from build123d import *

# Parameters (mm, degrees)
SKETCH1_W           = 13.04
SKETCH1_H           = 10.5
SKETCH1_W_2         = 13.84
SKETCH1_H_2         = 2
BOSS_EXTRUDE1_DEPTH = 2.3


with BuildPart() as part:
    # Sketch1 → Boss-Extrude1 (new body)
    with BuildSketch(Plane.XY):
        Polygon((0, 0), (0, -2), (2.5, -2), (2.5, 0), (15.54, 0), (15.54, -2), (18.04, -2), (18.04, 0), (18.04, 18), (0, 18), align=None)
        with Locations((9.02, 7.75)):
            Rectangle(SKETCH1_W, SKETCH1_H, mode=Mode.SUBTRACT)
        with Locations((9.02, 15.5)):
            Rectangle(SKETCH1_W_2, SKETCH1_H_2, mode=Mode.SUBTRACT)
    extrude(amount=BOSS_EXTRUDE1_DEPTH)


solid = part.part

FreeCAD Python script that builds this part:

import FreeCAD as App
import Part
import Sketcher

doc = App.newDocument("Part")
body = doc.addObject("PartDesign::Body", "Body")

# Sketch on XY plane
sketch1 = body.newObject("Sketcher::SketchObject", "Sketch")
sketch1.AttachmentSupport = (doc.getObject("XY_Plane"), [""])
sketch1.MapMode = "FlatFace"
sketch1.addGeometry([
    Part.LineSegment(App.Vector(0, -2, 0), App.Vector(2.5, -2, 0)),  # 0
    Part.LineSegment(App.Vector(2.5, -2, 0), App.Vector(2.5, 0, 0)),  # 1
    Part.LineSegment(App.Vector(2.5, 0, 0), App.Vector(15.5, 0, 0)),  # 2
    Part.LineSegment(App.Vector(15.5, 0, 0), App.Vector(15.5, -2, 0)),  # 3
    Part.LineSegment(App.Vector(15.5, -2, 0), App.Vector(18, -2, 0)),  # 4
    Part.LineSegment(App.Vector(18, -2, 0), App.Vector(18, 18, 0)),  # 5
    Part.LineSegment(App.Vector(18, 18, 0), App.Vector(0, 18, 0)),  # 6
    Part.LineSegment(App.Vector(0, 18, 0), App.Vector(0, -2, 0)),  # 7
    Part.LineSegment(App.Vector(15.5, 2.5, 0), App.Vector(2.5, 2.5, 0)),  # 8
    Part.LineSegment(App.Vector(2.5, 2.5, 0), App.Vector(2.5, 13, 0)),  # 9
    Part.LineSegment(App.Vector(2.5, 13, 0), App.Vector(15.5, 13, 0)),  # 10
    Part.LineSegment(App.Vector(15.5, 13, 0), App.Vector(15.5, 2.5, 0)),  # 11
    Part.LineSegment(App.Vector(15.9, 14.5, 0), App.Vector(2.1, 14.5, 0)),  # 12
    Part.LineSegment(App.Vector(2.1, 14.5, 0), App.Vector(2.1, 16.5, 0)),  # 13
    Part.LineSegment(App.Vector(2.1, 16.5, 0), App.Vector(15.9, 16.5, 0)),  # 14
    Part.LineSegment(App.Vector(15.9, 16.5, 0), App.Vector(15.9, 14.5, 0)),  # 15
], False)
sketch1.addConstraint([
    Sketcher.Constraint("Coincident", 0, 2, 1, 1),
    Sketcher.Constraint("Coincident", 1, 2, 2, 1),
    Sketcher.Constraint("Coincident", 2, 2, 3, 1),
    Sketcher.Constraint("Coincident", 3, 2, 4, 1),
    Sketcher.Constraint("Coincident", 4, 2, 5, 1),
    Sketcher.Constraint("Coincident", 5, 2, 6, 1),
    Sketcher.Constraint("Coincident", 6, 2, 7, 1),
    Sketcher.Constraint("Coincident", 7, 2, 0, 1),
    Sketcher.Constraint("Coincident", 8, 2, 9, 1),
    Sketcher.Constraint("Coincident", 9, 2, 10, 1),
    Sketcher.Constraint("Coincident", 10, 2, 11, 1),
    Sketcher.Constraint("Coincident", 11, 2, 8, 1),
    Sketcher.Constraint("Coincident", 12, 2, 13, 1),
    Sketcher.Constraint("Coincident", 13, 2, 14, 1),
    Sketcher.Constraint("Coincident", 14, 2, 15, 1),
    Sketcher.Constraint("Coincident", 15, 2, 12, 1),
    Sketcher.Constraint("Horizontal", 0),
    Sketcher.Constraint("Vertical", 1),
    Sketcher.Constraint("Horizontal", 2),
    Sketcher.Constraint("Vertical", 3),
    Sketcher.Constraint("Horizontal", 4),
    Sketcher.Constraint("Vertical", 5),
    Sketcher.Constraint("Horizontal", 6),
    Sketcher.Constraint("Vertical", 7),
    Sketcher.Constraint("Horizontal", 8),
    Sketcher.Constraint("Vertical", 9),
    Sketcher.Constraint("Horizontal", 10),
    Sketcher.Constraint("Vertical", 11),
    Sketcher.Constraint("Horizontal", 12),
    Sketcher.Constraint("Vertical", 13),
    Sketcher.Constraint("Horizontal", 14),
    Sketcher.Constraint("Vertical", 15),
    Sketcher.Constraint("PointOnObject", 1, 2, -1),
    Sketcher.Constraint("PointOnObject", 6, 2, -2),
    Sketcher.Constraint("Horizontal", 0, 2, 3, 2),
    Sketcher.Constraint("Vertical", 1, 2, 8, 2),
    Sketcher.Constraint("Vertical", 3, 2, 10, 2),
    Sketcher.Constraint("Equal", 0, 4),
    Sketcher.Constraint("Equal", 3, 13),
    Sketcher.Constraint("DistanceY", 1, 1, 1, 2, 2.0),
    Sketcher.Constraint("DistanceY", 5, 1, 5, 2, 20.0),
    Sketcher.Constraint("DistanceX", 0, 1, 0, 2, 2.5),
    Sketcher.Constraint("DistanceY", 9, 1, 9, 2, 10.5),
    Sketcher.Constraint("DistanceY", -1, 1, 9, 2, 13.0),
    Sketcher.Constraint("DistanceY", 8, 2, 12, 2, 12.0),
    Sketcher.Constraint("DistanceX", 2, 1, 2, 2, 13.04),
    Sketcher.Constraint("DistanceX", 12, 2, 12, 1, 13.84),
    Sketcher.Constraint("DistanceX", -1, 1, 12, 2, 2.1),
])
pad1 = body.newObject("PartDesign::Pad", "Pad")
pad1.Profile = sketch1
pad1.Length = 2.3

doc.recompute()
